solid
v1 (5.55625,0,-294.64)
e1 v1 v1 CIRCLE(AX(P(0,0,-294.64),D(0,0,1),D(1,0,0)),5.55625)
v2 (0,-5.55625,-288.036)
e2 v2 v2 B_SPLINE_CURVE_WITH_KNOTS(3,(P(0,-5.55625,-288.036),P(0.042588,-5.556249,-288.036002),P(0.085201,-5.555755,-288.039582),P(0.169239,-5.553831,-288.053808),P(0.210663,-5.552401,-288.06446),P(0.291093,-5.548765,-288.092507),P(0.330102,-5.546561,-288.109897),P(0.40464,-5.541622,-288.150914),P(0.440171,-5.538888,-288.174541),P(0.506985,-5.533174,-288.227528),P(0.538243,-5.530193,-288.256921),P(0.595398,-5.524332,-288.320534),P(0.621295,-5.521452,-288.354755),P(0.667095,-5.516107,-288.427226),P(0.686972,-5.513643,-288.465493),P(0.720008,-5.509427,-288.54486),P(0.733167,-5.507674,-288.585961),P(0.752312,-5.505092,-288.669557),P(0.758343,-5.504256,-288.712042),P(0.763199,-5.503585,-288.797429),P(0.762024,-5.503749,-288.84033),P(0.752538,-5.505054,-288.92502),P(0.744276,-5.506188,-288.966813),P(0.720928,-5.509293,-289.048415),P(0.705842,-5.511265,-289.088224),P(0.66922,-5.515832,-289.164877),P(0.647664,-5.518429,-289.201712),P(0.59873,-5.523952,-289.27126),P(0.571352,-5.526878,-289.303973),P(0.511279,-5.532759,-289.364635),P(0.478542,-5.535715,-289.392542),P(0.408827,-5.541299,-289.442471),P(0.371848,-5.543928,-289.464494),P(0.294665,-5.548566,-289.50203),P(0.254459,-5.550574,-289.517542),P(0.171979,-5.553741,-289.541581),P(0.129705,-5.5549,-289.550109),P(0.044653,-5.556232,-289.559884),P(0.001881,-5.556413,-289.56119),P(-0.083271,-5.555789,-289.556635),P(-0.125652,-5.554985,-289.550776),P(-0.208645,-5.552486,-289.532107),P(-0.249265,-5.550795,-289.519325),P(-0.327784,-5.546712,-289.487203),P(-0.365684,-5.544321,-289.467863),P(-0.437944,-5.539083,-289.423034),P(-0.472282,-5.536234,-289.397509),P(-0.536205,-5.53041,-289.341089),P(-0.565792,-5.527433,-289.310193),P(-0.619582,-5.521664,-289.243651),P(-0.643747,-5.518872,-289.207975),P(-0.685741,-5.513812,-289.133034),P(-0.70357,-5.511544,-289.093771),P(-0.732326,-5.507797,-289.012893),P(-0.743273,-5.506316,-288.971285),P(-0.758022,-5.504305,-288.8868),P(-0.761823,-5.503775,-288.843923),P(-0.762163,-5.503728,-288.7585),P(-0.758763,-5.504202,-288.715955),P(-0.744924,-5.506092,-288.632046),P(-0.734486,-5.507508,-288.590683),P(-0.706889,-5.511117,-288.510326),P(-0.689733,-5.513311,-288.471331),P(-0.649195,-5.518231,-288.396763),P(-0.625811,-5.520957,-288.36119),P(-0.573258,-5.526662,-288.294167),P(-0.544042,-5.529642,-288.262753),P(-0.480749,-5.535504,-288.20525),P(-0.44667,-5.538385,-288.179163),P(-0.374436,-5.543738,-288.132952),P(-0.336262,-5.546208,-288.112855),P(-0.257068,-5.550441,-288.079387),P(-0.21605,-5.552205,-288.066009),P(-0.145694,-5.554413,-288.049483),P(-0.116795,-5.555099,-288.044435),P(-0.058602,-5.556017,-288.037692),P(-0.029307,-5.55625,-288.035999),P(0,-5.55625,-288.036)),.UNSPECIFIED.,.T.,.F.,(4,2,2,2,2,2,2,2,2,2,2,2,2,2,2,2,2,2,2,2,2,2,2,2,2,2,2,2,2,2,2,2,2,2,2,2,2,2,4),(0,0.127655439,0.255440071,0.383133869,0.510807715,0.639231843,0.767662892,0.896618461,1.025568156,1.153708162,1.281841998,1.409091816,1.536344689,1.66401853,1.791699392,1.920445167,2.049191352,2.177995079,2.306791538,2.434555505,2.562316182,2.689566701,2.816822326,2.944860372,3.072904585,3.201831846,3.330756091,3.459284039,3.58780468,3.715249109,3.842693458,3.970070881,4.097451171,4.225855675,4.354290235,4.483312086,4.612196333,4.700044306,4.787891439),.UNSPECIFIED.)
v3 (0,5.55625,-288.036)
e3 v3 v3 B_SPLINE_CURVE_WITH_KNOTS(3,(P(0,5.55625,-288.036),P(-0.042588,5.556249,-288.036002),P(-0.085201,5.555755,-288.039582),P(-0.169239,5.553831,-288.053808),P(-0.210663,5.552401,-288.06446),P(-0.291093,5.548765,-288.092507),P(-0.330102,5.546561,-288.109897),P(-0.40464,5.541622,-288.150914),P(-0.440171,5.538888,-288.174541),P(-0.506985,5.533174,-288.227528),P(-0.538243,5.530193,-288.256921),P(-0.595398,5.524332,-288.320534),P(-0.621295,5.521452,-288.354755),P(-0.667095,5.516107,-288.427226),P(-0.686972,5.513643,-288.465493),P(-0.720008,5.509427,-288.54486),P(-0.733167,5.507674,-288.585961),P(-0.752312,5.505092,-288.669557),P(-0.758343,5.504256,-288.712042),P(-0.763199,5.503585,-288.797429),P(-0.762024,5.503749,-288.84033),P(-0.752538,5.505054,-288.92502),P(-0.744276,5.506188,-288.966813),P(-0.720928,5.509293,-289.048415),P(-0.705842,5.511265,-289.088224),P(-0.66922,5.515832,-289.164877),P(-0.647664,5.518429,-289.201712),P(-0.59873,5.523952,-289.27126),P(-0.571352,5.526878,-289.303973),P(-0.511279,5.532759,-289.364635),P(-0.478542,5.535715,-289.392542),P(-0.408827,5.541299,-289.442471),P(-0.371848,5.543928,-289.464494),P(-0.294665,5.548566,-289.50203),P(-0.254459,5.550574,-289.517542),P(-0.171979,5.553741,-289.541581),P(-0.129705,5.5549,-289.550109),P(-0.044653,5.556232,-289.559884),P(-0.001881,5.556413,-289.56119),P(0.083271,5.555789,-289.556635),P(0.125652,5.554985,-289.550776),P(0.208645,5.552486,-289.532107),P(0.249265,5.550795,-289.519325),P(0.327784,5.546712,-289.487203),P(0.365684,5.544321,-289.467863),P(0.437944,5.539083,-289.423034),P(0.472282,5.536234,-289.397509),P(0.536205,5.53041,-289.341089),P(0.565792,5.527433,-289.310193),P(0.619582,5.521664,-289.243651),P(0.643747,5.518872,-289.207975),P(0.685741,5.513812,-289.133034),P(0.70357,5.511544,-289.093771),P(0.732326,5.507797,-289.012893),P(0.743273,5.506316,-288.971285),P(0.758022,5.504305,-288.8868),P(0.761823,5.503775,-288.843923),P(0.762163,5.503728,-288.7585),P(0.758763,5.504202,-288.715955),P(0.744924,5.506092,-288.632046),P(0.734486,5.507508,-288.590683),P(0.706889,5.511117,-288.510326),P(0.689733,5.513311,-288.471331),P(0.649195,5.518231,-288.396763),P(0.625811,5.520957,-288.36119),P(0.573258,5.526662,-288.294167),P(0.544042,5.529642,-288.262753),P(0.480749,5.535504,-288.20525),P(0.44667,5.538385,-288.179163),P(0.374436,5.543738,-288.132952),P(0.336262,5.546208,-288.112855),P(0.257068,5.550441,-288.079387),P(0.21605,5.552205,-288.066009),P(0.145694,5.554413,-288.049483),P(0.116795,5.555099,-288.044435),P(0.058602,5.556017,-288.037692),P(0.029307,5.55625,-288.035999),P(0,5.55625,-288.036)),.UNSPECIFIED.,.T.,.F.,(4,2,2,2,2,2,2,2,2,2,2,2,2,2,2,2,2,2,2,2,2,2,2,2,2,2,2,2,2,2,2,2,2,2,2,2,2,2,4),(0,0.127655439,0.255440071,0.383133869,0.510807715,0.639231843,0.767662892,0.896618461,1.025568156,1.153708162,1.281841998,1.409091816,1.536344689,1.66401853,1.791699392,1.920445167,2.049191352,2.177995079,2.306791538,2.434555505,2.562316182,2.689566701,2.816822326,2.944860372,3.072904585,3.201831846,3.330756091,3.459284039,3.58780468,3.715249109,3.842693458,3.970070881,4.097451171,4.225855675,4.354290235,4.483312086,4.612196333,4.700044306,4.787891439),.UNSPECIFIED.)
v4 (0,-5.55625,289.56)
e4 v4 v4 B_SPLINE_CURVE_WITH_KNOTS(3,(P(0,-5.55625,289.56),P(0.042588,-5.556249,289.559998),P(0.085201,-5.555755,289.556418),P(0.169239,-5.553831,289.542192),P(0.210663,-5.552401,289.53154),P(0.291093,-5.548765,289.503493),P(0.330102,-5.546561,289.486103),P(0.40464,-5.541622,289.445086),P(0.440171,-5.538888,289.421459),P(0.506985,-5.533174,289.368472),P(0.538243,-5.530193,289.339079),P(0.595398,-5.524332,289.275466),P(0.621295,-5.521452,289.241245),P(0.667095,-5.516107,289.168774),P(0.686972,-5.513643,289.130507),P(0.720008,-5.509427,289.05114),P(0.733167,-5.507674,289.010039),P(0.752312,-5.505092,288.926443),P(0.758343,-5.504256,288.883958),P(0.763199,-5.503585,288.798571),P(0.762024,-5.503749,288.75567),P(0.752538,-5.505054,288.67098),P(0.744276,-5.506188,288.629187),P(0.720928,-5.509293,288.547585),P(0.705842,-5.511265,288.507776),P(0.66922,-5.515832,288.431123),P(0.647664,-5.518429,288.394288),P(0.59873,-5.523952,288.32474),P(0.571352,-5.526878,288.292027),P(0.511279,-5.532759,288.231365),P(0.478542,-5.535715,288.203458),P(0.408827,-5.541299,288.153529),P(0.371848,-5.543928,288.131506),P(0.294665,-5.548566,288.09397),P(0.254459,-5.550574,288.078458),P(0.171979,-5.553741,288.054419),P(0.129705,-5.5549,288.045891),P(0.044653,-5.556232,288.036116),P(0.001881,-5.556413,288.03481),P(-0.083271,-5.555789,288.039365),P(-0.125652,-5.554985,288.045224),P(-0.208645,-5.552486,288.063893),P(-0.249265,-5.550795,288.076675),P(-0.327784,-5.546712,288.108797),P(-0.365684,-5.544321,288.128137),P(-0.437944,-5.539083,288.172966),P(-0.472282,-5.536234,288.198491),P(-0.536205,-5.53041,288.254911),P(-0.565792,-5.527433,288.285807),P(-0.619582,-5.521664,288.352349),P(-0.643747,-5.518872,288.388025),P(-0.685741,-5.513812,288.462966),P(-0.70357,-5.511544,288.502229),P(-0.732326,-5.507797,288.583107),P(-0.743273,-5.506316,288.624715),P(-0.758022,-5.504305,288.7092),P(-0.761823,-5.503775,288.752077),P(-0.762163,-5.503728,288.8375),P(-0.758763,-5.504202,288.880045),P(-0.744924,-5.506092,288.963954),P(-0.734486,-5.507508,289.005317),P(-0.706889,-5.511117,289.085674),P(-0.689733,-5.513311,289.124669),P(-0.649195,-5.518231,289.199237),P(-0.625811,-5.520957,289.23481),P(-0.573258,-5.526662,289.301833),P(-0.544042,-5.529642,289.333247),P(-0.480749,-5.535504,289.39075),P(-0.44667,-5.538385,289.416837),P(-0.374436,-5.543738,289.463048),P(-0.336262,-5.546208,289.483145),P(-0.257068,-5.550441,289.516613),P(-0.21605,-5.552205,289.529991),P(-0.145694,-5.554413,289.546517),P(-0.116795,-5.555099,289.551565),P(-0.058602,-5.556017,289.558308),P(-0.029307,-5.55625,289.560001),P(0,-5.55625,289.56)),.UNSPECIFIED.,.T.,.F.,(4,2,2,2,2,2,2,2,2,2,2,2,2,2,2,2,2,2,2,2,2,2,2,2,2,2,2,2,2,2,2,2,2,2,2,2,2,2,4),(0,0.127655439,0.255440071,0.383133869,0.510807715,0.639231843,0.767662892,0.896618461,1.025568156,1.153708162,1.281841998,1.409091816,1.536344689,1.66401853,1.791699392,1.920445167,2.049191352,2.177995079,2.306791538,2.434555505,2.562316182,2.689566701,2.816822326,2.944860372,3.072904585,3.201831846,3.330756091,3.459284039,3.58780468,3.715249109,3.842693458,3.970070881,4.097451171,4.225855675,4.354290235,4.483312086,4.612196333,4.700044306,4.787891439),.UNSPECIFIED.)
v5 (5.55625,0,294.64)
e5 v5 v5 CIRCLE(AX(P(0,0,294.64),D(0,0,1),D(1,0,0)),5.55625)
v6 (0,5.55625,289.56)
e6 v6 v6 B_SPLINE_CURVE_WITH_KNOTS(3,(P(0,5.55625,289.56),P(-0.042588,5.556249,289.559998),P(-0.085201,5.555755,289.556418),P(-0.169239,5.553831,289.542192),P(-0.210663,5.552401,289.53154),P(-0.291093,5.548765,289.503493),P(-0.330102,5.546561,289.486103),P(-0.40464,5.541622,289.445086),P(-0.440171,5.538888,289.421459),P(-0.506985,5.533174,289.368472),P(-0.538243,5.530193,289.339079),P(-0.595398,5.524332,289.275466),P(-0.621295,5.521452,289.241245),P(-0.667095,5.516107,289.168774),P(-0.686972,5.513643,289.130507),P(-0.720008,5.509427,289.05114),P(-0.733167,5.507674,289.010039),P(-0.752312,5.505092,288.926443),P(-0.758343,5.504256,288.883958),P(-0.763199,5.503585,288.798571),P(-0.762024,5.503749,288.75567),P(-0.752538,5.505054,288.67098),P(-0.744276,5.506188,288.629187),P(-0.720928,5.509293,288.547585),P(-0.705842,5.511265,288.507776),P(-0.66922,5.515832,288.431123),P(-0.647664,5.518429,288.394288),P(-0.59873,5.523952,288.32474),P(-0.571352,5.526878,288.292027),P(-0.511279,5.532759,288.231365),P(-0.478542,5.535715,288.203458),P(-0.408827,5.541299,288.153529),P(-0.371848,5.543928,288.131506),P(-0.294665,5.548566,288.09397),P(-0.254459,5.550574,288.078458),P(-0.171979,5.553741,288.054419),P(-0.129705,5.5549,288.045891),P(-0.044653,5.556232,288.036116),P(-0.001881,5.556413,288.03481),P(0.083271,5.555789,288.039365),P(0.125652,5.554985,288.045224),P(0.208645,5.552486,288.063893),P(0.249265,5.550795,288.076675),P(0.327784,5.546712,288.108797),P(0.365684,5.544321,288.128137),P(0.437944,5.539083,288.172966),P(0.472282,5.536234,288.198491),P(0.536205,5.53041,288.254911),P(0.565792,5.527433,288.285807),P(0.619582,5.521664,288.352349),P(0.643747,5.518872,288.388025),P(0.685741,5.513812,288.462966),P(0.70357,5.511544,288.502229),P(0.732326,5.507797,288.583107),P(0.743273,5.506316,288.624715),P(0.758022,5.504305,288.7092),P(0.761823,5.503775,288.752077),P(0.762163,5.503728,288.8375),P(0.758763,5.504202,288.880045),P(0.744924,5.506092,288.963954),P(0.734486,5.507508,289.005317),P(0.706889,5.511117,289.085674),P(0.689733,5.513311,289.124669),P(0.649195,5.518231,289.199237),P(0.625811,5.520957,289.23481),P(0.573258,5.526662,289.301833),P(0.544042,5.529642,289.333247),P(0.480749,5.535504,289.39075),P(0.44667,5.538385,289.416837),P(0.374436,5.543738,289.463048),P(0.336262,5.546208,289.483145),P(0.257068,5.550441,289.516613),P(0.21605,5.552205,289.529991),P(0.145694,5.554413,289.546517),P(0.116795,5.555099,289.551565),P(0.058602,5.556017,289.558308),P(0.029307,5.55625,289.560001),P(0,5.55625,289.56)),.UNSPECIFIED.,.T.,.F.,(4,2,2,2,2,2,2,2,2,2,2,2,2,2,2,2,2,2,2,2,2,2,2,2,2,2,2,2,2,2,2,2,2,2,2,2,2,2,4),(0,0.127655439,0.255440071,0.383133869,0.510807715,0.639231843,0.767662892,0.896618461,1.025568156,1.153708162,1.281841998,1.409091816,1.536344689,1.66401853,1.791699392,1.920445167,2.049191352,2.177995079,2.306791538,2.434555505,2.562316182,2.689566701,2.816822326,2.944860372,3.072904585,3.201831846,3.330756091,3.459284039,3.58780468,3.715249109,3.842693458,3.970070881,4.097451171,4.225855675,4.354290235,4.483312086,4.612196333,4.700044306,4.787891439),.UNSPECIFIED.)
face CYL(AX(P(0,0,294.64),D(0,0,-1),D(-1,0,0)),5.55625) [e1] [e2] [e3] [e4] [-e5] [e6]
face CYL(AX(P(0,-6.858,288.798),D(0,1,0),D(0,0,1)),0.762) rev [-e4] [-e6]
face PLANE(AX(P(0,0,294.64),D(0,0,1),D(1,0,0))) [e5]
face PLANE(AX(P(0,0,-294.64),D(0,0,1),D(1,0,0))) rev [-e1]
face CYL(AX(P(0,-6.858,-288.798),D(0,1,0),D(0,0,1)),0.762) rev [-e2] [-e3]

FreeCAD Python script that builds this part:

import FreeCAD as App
import Part
import Sketcher
Q = App.Units.Quantity

doc = App.newDocument("Part")
body = doc.addObject("PartDesign::Body", "Body")

# Sketch on XY plane
sketch1 = body.newObject("Sketcher::SketchObject", "Sketch")
sketch1.AttachmentSupport = (doc.getObject("XY_Plane"), [""])
sketch1.MapMode = "FlatFace"
sketch1.addGeometry(Part.Circle(App.Vector(0, 0, 0), App.Vector(0, 0, 1), 5.55625), False)
sketch1.addConstraint(Sketcher.Constraint("Coincident", 0, 3, -1, 1))
sketch1.addConstraint(Sketcher.Constraint("Diameter", 0, Q("0.4375 in")))
pad1 = body.newObject("PartDesign::Pad", "Pad")
pad1.Profile = sketch1
pad1.Length = Q("23.2 in")
pad1.Midplane = True

# Sketch on XZ plane
sketch2 = body.newObject("Sketcher::SketchObject", "Sketch001")
sketch2.AttachmentSupport = (doc.getObject("XZ_Plane"), [""])
sketch2.MapMode = "FlatFace"
sketch2.addGeometry(Part.Circle(App.Vector(0, 288.798, 0), App.Vector(0, 0, 1), 0.762), False)
sketch2.addGeometry(Part.Circle(App.Vector(0, -288.798, 0), App.Vector(0, 0, 1), 0.762), False)
sketch2.addConstraint(Sketcher.Constraint("Equal", 0, 1))
sketch2.addConstraint(Sketcher.Constraint("Symmetric", 0, 3, 1, 3, -1, 1))
sketch2.addConstraint(Sketcher.Constraint("PointOnObject", 0, 3, -2))
sketch2.addConstraint(Sketcher.Constraint("Diameter", 0, Q("0.06 in")))
sketch2.addConstraint(Sketcher.Constraint("DistanceY", -1, 1, 0, 3, Q("11.37 in")))
pocket1 = body.newObject("PartDesign::Pocket", "Pocket")
pocket1.Profile = sketch2
pocket1.Length = Q("0.54 in")
pocket1.Midplane = True

doc.recompute()
